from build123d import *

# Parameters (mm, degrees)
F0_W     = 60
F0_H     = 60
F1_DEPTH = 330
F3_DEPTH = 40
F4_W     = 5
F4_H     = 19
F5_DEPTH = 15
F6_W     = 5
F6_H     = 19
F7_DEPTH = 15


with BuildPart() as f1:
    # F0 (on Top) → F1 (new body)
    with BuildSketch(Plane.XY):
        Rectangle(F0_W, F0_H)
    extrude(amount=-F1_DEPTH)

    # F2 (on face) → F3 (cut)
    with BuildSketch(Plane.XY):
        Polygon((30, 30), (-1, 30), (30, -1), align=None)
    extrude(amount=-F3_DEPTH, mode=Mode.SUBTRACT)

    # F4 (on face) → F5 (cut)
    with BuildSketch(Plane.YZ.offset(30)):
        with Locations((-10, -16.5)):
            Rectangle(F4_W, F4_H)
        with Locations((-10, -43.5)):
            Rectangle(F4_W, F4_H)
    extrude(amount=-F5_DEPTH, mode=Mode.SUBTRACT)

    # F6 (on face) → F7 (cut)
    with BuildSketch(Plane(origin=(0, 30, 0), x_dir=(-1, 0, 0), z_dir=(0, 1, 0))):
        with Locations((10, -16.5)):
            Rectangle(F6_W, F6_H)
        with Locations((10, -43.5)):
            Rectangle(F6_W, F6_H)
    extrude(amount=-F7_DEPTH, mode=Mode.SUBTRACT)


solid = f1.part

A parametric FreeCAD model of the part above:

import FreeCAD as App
import Part
import Sketcher
from FreeCAD import Vector

doc = App.newDocument("Part")
params = doc.addObject("Spreadsheet::Sheet", "Params")
for row, (alias, value) in enumerate([
    ("sketch1_width", "60 mm"),
    ("pad1_length", "330 mm"),
    ("sketch2_width", "31 mm"),
    ("pocket1_length", "40 mm"),
    ("sketch3_width", "5 mm"),
    ("sketch3_height", "19 mm"),
    ("pocket2_length", "15 mm"),
    ("sketch4_width", "5 mm"),
    ("sketch4_height", "19 mm"),
    ("pocket3_length", "15 mm"),
], start=1):
    params.set(f"A{row}", alias)
    params.set(f"B{row}", "=" + value)
    params.setAlias(f"B{row}", alias)

body = doc.addObject("PartDesign::Body", "Body")

# Sketch on XY plane
sketch1 = body.newObject("Sketcher::SketchObject", "Sketch")
sketch1.AttachmentSupport = (doc.getObject("XY_Plane"), [""])
sketch1.MapMode = "FlatFace"
sketch1.addGeometry([
    Part.LineSegment(Vector(-30, 30, 0), Vector(-30, -30, 0)),
    Part.LineSegment(Vector(-30, -30, 0), Vector(30, -30, 0)),
    Part.LineSegment(Vector(30, -30, 0), Vector(30, 30, 0)),
    Part.LineSegment(Vector(30, 30, 0), Vector(-30, 30, 0)),
], False)
sketch1.addConstraint([
    Sketcher.Constraint("Coincident", 0, 2, 1, 1),
    Sketcher.Constraint("Coincident", 1, 2, 2, 1),
    Sketcher.Constraint("Coincident", 2, 2, 3, 1),
    Sketcher.Constraint("Coincident", 3, 2, 0, 1),
    Sketcher.Constraint("Vertical", 0),
    Sketcher.Constraint("Horizontal", 1),
    Sketcher.Constraint("Vertical", 2),
    Sketcher.Constraint("Horizontal", 3),
    Sketcher.Constraint("Symmetric", 0, 2, 2, 2, -1, 1),
    Sketcher.Constraint("Equal", 3, 0),
    Sketcher.Constraint("DistanceX", 1, 1, 1, 2, 60.0),
])
sketch1.setExpression("Constraints[10]", "Params.sketch1_width")
pad1 = body.newObject("PartDesign::Pad", "Pad")
pad1.Profile = sketch1
pad1.setExpression("Length", "Params.pad1_length")
pad1.Reversed = True

# Sketch on XY plane
sketch2 = body.newObject("Sketcher::SketchObject", "Sketch001")
sketch2.AttachmentSupport = (doc.getObject("XY_Plane"), [""])
sketch2.MapMode = "FlatFace"
sketch2.addGeometry([
    Part.LineSegment(Vector(30, 30, 0), Vector(-1, 30, 0)),
    Part.LineSegment(Vector(-1, 30, 0), Vector(30, -1, 0)),
    Part.LineSegment(Vector(30, -1, 0), Vector(30, 30, 0)),
], False)
sketch2.addConstraint([
    Sketcher.Constraint("Coincident", 0, 2, 1, 1),
    Sketcher.Constraint("Coincident", 1, 2, 2, 1),
    Sketcher.Constraint("Coincident", 2, 2, 0, 1),
    Sketcher.Constraint("Horizontal", 0),
    Sketcher.Constraint("Vertical", 2),
    Sketcher.Constraint("Equal", 0, 2),
    Sketcher.Constraint("DistanceX", 0, 2, 0, 1, 31.0),
    Sketcher.Constraint("DistanceX", 0, 2, -1, 1, 1.0),
    Sketcher.Constraint("DistanceY", -1, 1, 0, 2, 30.0),
])
sketch2.setExpression("Constraints[6]", "Params.sketch2_width")
pocket1 = body.newObject("PartDesign::Pocket", "Pocket")
pocket1.Profile = sketch2
pocket1.setExpression("Length", "Params.pocket1_length")

# Sketch on YZ plane
sketch3 = body.newObject("Sketcher::SketchObject", "Sketch002")
sketch3.AttachmentSupport = (doc.getObject("YZ_Plane"), [""])
sketch3.MapMode = "FlatFace"
sketch3.AttachmentOffset = App.Placement(Vector(0, 0, 30), App.Rotation())
sketch3.addGeometry([
    Part.LineSegment(Vector(-12, -7, 0), Vector(-12, -26, 0)),  # 0
    Part.LineSegment(Vector(-12, -26, 0), Vector(-8, -26, 0)),  # 1
    Part.LineSegment(Vector(-8, -26, 0), Vector(-8, -7, 0)),  # 2
    Part.LineSegment(Vector(-8, -7, 0), Vector(-12, -7, 0)),  # 3
    Part.LineSegment(Vector(-12, -34, 0), Vector(-12, -53, 0)),  # 4
    Part.LineSegment(Vector(-12, -53, 0), Vector(-8, -53, 0)),  # 5
    Part.LineSegment(Vector(-8, -53, 0), Vector(-8, -34, 0)),  # 6
    Part.LineSegment(Vector(-8, -34, 0), Vector(-12, -34, 0)),  # 7
], False)
sketch3.addConstraint([
    Sketcher.Constraint("Coincident", 0, 2, 1, 1),
    Sketcher.Constraint("Coincident", 1, 2, 2, 1),
    Sketcher.Constraint("Coincident", 2, 2, 3, 1),
    Sketcher.Constraint("Coincident", 3, 2, 0, 1),
    Sketcher.Constraint("Coincident", 4, 2, 5, 1),
    Sketcher.Constraint("Coincident", 5, 2, 6, 1),
    Sketcher.Constraint("Coincident", 6, 2, 7, 1),
    Sketcher.Constraint("Coincident", 7, 2, 4, 1),
    Sketcher.Constraint("Vertical", 0),
    Sketcher.Constraint("Horizontal", 1),
    Sketcher.Constraint("Vertical", 2),
    Sketcher.Constraint("Horizontal", 3),
    Sketcher.Constraint("Vertical", 4),
    Sketcher.Constraint("Horizontal", 5),
    Sketcher.Constraint("Vertical", 6),
    Sketcher.Constraint("Horizontal", 7),
    Sketcher.Constraint("Vertical", 3, 2, 4, 2),
    Sketcher.Constraint("Vertical", 2, 2, 5, 2),
    Sketcher.Constraint("Equal", 2, 4),
    Sketcher.Constraint("DistanceX", 1, 1, 1, 2, 5.0),
    Sketcher.Constraint("DistanceY", 0, 2, 0, 1, 19.0),
    Sketcher.Constraint("DistanceY", 0, 2, -1, 1, 26.0),
    Sketcher.Constraint("DistanceY", 4, 2, -1, 1, 53.0),
    Sketcher.Constraint("DistanceX", 0, 2, -1, 1, 12.5),
])
sketch3.setExpression("Constraints[19]", "Params.sketch3_width")
sketch3.setExpression("Constraints[20]", "Params.sketch3_height")
pocket2 = body.newObject("PartDesign::Pocket", "Pocket001")
pocket2.Profile = sketch3
pocket2.setExpression("Length", "Params.pocket2_length")

# Sketch on XZ plane
sketch4 = body.newObject("Sketcher::SketchObject", "Sketch003")
sketch4.AttachmentSupport = (doc.getObject("XZ_Plane"), [""])
sketch4.MapMode = "FlatFace"
sketch4.AttachmentOffset = App.Placement(Vector(0, 0, -30), App.Rotation())
sketch4.addGeometry([
    Part.LineSegment(Vector(-8, -7, 0), Vector(-8, -26, 0)),  # 0
    Part.LineSegment(Vector(-8, -26, 0), Vector(-12, -26, 0)),  # 1
    Part.LineSegment(Vector(-12, -26, 0), Vector(-12, -7, 0)),  # 2
    Part.LineSegment(Vector(-12, -7, 0), Vector(-8, -7, 0)),  # 3
    Part.LineSegment(Vector(-8, -34, 0), Vector(-8, -53, 0)),  # 4
    Part.LineSegment(Vector(-8, -53, 0), Vector(-12, -53, 0)),  # 5
    Part.LineSegment(Vector(-12, -53, 0), Vector(-12, -34, 0)),  # 6
    Part.LineSegment(Vector(-12, -34, 0), Vector(-8, -34, 0)),  # 7
], False)
sketch4.addConstraint([
    Sketcher.Constraint("Coincident", 0, 2, 1, 1),
    Sketcher.Constraint("Coincident", 1, 2, 2, 1),
    Sketcher.Constraint("Coincident", 2, 2, 3, 1),
    Sketcher.Constraint("Coincident", 3, 2, 0, 1),
    Sketcher.Constraint("Coincident", 4, 2, 5, 1),
    Sketcher.Constraint("Coincident", 5, 2, 6, 1),
    Sketcher.Constraint("Coincident", 6, 2, 7, 1),
    Sketcher.Constraint("Coincident", 7, 2, 4, 1),
    Sketcher.Constraint("Vertical", 0),
    Sketcher.Constraint("Horizontal", 1),
    Sketcher.Constraint("Vertical", 2),
    Sketcher.Constraint("Horizontal", 3),
    Sketcher.Constraint("Vertical", 4),
    Sketcher.Constraint("Horizontal", 5),
    Sketcher.Constraint("Vertical", 6),
    Sketcher.Constraint("Horizontal", 7),
    Sketcher.Constraint("Vertical", 3, 2, 4, 2),
    Sketcher.Constraint("Vertical", 2, 2, 5, 2),
    Sketcher.Constraint("Equal", 2, 4),
    Sketcher.Constraint("DistanceX", 1, 2, 1, 1, 5.0),
    Sketcher.Constraint("DistanceY", 0, 2, 0, 1, 19.0),
    Sketcher.Constraint("DistanceY", 0, 2, -1, 1, 26.0),
    Sketcher.Constraint("DistanceY", 4, 2, -1, 1, 53.0),
    Sketcher.Constraint("DistanceX", 0, 2, -1, 1, 7.5),
])
sketch4.setExpression("Constraints[19]", "Params.sketch4_width")
sketch4.setExpression("Constraints[20]", "Params.sketch4_height")
pocket3 = body.newObject("PartDesign::Pocket", "Pocket002")
pocket3.Profile = sketch4
pocket3.setExpression("Length", "Params.pocket3_length")
pocket3.Reversed = True

doc.recompute()
